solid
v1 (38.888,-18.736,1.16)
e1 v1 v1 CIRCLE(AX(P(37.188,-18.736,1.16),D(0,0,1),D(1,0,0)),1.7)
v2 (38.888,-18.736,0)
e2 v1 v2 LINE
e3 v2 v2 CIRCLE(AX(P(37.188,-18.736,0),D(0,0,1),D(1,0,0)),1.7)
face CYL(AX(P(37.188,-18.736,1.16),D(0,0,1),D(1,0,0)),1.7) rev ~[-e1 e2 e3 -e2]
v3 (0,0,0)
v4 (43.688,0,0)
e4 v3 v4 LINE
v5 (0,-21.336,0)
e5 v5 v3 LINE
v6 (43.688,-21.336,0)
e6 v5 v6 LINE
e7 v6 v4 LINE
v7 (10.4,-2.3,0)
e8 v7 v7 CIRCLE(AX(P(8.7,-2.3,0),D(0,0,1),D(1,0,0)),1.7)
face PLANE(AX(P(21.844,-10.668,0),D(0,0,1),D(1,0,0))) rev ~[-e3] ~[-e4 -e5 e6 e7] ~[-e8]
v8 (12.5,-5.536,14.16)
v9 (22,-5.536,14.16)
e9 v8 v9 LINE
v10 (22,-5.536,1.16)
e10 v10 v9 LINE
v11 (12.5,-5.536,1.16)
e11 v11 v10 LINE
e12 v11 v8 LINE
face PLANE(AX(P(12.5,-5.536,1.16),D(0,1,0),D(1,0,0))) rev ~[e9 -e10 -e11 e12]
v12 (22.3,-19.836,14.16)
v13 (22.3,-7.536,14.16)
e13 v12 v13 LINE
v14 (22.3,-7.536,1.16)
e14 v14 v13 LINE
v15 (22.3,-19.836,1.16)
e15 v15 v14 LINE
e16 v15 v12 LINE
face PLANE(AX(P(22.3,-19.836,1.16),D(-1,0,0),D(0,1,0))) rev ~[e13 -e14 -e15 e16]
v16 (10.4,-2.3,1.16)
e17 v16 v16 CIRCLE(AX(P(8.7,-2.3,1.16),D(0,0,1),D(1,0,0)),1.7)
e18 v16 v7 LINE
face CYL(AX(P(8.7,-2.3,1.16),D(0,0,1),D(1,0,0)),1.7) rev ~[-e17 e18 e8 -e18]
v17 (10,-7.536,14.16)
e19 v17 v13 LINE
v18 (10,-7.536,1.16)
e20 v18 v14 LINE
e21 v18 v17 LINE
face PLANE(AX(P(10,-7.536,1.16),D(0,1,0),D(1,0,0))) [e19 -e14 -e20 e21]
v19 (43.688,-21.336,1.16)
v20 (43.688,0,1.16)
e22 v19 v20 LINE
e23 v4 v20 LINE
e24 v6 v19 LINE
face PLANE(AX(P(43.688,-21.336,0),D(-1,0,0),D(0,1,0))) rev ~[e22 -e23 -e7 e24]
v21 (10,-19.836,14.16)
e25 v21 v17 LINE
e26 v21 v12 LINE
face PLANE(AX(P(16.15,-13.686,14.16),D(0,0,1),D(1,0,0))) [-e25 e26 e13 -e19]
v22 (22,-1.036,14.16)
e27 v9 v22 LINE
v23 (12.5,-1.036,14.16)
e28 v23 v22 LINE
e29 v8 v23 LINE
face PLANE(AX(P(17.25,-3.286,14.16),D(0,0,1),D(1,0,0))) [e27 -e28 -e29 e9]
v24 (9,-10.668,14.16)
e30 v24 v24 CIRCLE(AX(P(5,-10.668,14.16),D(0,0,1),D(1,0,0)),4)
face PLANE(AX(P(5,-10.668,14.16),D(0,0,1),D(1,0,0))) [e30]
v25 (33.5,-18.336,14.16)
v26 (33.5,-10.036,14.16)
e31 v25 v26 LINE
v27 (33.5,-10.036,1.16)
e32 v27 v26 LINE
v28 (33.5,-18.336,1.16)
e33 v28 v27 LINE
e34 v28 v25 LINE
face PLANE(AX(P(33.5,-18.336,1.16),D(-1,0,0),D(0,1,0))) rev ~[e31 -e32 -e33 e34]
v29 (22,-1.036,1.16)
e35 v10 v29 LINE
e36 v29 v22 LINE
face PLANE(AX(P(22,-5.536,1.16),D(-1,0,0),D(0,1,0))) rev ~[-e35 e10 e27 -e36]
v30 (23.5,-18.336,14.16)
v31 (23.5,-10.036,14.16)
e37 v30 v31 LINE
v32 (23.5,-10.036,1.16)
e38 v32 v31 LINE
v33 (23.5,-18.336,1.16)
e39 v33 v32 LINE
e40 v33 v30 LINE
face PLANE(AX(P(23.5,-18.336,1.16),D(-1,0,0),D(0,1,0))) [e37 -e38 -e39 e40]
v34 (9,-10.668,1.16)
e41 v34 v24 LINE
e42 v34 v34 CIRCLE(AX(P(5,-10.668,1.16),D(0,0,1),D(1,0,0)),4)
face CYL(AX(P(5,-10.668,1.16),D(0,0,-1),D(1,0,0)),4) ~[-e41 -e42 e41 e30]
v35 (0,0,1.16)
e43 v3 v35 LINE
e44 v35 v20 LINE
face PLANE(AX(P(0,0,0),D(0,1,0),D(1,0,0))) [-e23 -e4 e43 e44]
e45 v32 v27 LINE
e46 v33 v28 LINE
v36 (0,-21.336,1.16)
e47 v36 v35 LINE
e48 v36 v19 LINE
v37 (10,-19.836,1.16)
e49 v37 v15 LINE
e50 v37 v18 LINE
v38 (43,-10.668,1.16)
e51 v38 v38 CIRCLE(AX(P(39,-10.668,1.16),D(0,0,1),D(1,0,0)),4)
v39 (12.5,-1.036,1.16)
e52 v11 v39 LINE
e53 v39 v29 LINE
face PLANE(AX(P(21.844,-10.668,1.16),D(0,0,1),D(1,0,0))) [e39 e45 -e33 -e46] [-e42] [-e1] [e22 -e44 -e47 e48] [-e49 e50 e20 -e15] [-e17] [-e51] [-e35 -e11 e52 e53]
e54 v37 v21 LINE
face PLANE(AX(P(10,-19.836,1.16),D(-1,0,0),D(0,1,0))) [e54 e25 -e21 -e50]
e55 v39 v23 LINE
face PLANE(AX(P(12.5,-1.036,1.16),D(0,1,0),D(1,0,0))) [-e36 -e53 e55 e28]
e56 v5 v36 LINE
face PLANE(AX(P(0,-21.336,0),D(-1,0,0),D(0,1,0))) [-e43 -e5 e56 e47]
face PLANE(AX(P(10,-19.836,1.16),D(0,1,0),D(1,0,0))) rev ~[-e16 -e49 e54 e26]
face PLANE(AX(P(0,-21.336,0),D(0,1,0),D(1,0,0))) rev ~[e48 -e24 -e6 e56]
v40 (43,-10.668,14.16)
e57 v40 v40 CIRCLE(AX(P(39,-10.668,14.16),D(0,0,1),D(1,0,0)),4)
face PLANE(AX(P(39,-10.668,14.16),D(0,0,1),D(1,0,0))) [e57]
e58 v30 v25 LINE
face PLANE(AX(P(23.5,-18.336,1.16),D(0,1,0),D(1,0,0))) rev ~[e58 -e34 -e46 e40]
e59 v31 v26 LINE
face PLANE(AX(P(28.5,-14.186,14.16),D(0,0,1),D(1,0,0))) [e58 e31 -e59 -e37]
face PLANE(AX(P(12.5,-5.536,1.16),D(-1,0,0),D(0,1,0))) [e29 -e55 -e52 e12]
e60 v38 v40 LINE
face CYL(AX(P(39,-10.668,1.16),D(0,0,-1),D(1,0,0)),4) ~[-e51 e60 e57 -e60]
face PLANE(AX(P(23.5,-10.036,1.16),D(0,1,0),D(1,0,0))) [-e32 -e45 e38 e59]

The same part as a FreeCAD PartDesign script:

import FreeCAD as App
import Part
import Sketcher
from FreeCAD import Vector
Q = App.Units.Quantity

doc = App.newDocument("Part")
params = doc.addObject("Spreadsheet::Sheet", "Params")
for row, (alias, value) in enumerate([
    ("pad1_length", "1.16 mm"),
    ("sketch2_diameter", "3.4 mm"),
    ("pocket1_length", "25 mm"),
    ("sketch3_diameter", "8 mm"),
    ("sketch3_width", "10 mm"),
    ("sketch3_width2", "12.3 mm"),
    ("sketch3_width3", "9.5 mm"),
    ("sketch3_height", "8.3 mm"),
    ("pad2_length", "13 mm"),
], start=1):
    params.set(f"A{row}", alias)
    params.set(f"B{row}", "=" + value)
    params.setAlias(f"B{row}", alias)

body = doc.addObject("PartDesign::Body", "Body")

# Sketch on XY plane
sketch1 = body.newObject("Sketcher::SketchObject", "Sketch")
sketch1.AttachmentSupport = (doc.getObject("XY_Plane"), [""])
sketch1.MapMode = "FlatFace"
sketch1.addGeometry([
    Part.LineSegment(Vector(0, 0, 0), Vector(0, -21.336, 0)),
    Part.LineSegment(Vector(0, -21.336, 0), Vector(43.688, -21.336, 0)),
    Part.LineSegment(Vector(43.688, -21.336, 0), Vector(43.688, 0, 0)),
    Part.LineSegment(Vector(43.688, 0, 0), Vector(0, 0, 0)),
], False)
sketch1.addConstraint([
    Sketcher.Constraint("Coincident", 0, 2, 1, 1),
    Sketcher.Constraint("Coincident", 1, 2, 2, 1),
    Sketcher.Constraint("Coincident", 2, 2, 3, 1),
    Sketcher.Constraint("Coincident", 3, 2, 0, 1),
    Sketcher.Constraint("Vertical", 0),
    Sketcher.Constraint("Horizontal", 1),
    Sketcher.Constraint("Vertical", 2),
    Sketcher.Constraint("Horizontal", 3),
    Sketcher.Constraint("Coincident", 3, 2, -1, 1),
    Sketcher.Constraint("DistanceX", 1, 1, 1, 2, Q("43.688 mm")),
    Sketcher.Constraint("DistanceY", 0, 2, 0, 1, Q("21.336 mm")),
])
pad1 = body.newObject("PartDesign::Pad", "Pad")
pad1.Profile = sketch1
pad1.setExpression("Length", "Params.pad1_length")

# Sketch on XY plane
sketch2 = body.newObject("Sketcher::SketchObject", "Sketch001")
sketch2.AttachmentSupport = (doc.getObject("XY_Plane"), [""])
sketch2.MapMode = "FlatFace"
sketch2.AttachmentOffset = App.Placement(Vector(0, 0, 1.16), App.Rotation())
sketch2.addGeometry([
    Part.Circle(Vector(37.188, -18.736, 0), Vector(0, 0, 1), 1.7),
    Part.Circle(Vector(8.7, -2.3, 0), Vector(0, 0, 1), 1.7),
], False)
sketch2.addConstraint([
    Sketcher.Constraint("Equal", 0, 1),
    Sketcher.Constraint("Diameter", 0, Q("3.4 mm")),
    Sketcher.Constraint("DistanceX", -1, 1, 1, 3, Q("8.7 mm")),
    Sketcher.Constraint("DistanceY", 1, 3, -1, 1, Q("2.3 mm")),
    Sketcher.Constraint("DistanceX", -1, 1, 0, 3, Q("37.188 mm")),
    Sketcher.Constraint("DistanceY", 0, 3, -1, 1, Q("18.736 mm")),
])
sketch2.setExpression("Constraints[1]", "Params.sketch2_diameter")
pocket1 = body.newObject("PartDesign::Pocket", "Pocket")
pocket1.Profile = sketch2
pocket1.setExpression("Length", "Params.pocket1_length")

# Sketch on XY plane
sketch3 = body.newObject("Sketcher::SketchObject", "Sketch002")
sketch3.AttachmentSupport = (doc.getObject("XY_Plane"), [""])
sketch3.MapMode = "FlatFace"
sketch3.AttachmentOffset = App.Placement(Vector(0, 0, 1.16), App.Rotation())
sketch3.addGeometry([
    Part.Circle(Vector(5, -10.668, 0), Vector(0, 0, 1), 4),  # 0
    Part.Circle(Vector(39, -10.668, 0), Vector(0, 0, 1), 4),  # 1
    Part.LineSegment(Vector(10, -7.536, 0), Vector(10, -19.836, 0)),  # 2
    Part.LineSegment(Vector(10, -19.836, 0), Vector(22.3, -19.836, 0)),  # 3
    Part.LineSegment(Vector(22.3, -19.836, 0), Vector(22.3, -7.536, 0)),  # 4
    Part.LineSegment(Vector(22.3, -7.536, 0), Vector(10, -7.536, 0)),  # 5
    Part.LineSegment(Vector(23.5, -10.036, 0), Vector(23.5, -18.336, 0)),  # 6
    Part.LineSegment(Vector(23.5, -18.336, 0), Vector(33.5, -18.336, 0)),  # 7
    Part.LineSegment(Vector(33.5, -18.336, 0), Vector(33.5, -10.036, 0)),  # 8
    Part.LineSegment(Vector(33.5, -10.036, 0), Vector(23.5, -10.036, 0)),  # 9
    Part.LineSegment(Vector(12.5, -1.036, 0), Vector(12.5, -5.536, 0)),  # 10
    Part.LineSegment(Vector(12.5, -5.536, 0), Vector(22, -5.536, 0)),  # 11
    Part.LineSegment(Vector(22, -5.536, 0), Vector(22, -1.036, 0)),  # 12
    Part.LineSegment(Vector(22, -1.036, 0), Vector(12.5, -1.036, 0)),  # 13
], False)
sketch3.addConstraint([
    Sketcher.Constraint("Coincident", 2, 2, 3, 1),
    Sketcher.Constraint("Coincident", 3, 2, 4, 1),
    Sketcher.Constraint("Coincident", 4, 2, 5, 1),
    Sketcher.Constraint("Coincident", 5, 2, 2, 1),
    Sketcher.Constraint("Coincident", 6, 2, 7, 1),
    Sketcher.Constraint("Coincident", 7, 2, 8, 1),
    Sketcher.Constraint("Coincident", 8, 2, 9, 1),
    Sketcher.Constraint("Coincident", 9, 2, 6, 1),
    Sketcher.Constraint("Coincident", 10, 2, 11, 1),
    Sketcher.Constraint("Coincident", 11, 2, 12, 1),
    Sketcher.Constraint("Coincident", 12, 2, 13, 1),
    Sketcher.Constraint("Coincident", 13, 2, 10, 1),
    Sketcher.Constraint("Vertical", 2),
    Sketcher.Constraint("Horizontal", 3),
    Sketcher.Constraint("Vertical", 4),
    Sketcher.Constraint("Horizontal", 5),
    Sketcher.Constraint("Vertical", 6),
    Sketcher.Constraint("Horizontal", 7),
    Sketcher.Constraint("Vertical", 8),
    Sketcher.Constraint("Horizontal", 9),
    Sketcher.Constraint("Vertical", 10),
    Sketcher.Constraint("Horizontal", 11),
    Sketcher.Constraint("Vertical", 12),
    Sketcher.Constraint("Horizontal", 13),
    Sketcher.Constraint("Equal", 0, 1),
    Sketcher.Constraint("Horizontal", 0, 3, 1, 3),
    Sketcher.Constraint("Equal", 5, 2),
    Sketcher.Constraint("Diameter", 0, Q("8 mm")),
    Sketcher.Constraint("DistanceX", 7, 1, 7, 2, Q("10 mm")),
    Sketcher.Constraint("DistanceX", 3, 1, 3, 2, Q("12.3 mm")),
    Sketcher.Constraint("DistanceX", 11, 1, 11, 2, Q("9.5 mm")),
    Sketcher.Constraint("DistanceY", 6, 2, 6, 1, Q("8.3 mm")),
    Sketcher.Constraint("DistanceY", 10, 2, 10, 1, Q("4.5 mm")),
    Sketcher.Constraint("DistanceX", -1, 1, 0, 3, Q("5 mm")),
    Sketcher.Constraint("DistanceX", -1, 1, 1, 3, Q("39 mm")),
    Sketcher.Constraint("DistanceX", -1, 1, 2, 2, Q("10 mm")),
    Sketcher.Constraint("DistanceX", -1, 1, 11, 2, Q("22 mm")),
    Sketcher.Constraint("DistanceY", 5, 2, 10, 2, Q("2 mm")),
    Sketcher.Constraint("DistanceX", 10, 2, 9, 2, Q("11 mm")),
    Sketcher.Constraint("DistanceY", 9, 2, 12, 2, Q("9 mm")),
    Sketcher.Constraint("DistanceY", 0, 3, -1, 1, Q("10.668 mm")),
    Sketcher.Constraint("DistanceY", 2, 2, -1, 1, Q("19.836 mm")),
])
sketch3.setExpression("Constraints[27]", "Params.sketch3_diameter")
sketch3.setExpression("Constraints[28]", "Params.sketch3_width")
sketch3.setExpression("Constraints[29]", "Params.sketch3_width2")
sketch3.setExpression("Constraints[30]", "Params.sketch3_width3")
sketch3.setExpression("Constraints[31]", "Params.sketch3_height")
pad2 = body.newObject("PartDesign::Pad", "Pad001")
pad2.Profile = sketch3
pad2.setExpression("Length", "Params.pad2_length")

doc.recompute()
